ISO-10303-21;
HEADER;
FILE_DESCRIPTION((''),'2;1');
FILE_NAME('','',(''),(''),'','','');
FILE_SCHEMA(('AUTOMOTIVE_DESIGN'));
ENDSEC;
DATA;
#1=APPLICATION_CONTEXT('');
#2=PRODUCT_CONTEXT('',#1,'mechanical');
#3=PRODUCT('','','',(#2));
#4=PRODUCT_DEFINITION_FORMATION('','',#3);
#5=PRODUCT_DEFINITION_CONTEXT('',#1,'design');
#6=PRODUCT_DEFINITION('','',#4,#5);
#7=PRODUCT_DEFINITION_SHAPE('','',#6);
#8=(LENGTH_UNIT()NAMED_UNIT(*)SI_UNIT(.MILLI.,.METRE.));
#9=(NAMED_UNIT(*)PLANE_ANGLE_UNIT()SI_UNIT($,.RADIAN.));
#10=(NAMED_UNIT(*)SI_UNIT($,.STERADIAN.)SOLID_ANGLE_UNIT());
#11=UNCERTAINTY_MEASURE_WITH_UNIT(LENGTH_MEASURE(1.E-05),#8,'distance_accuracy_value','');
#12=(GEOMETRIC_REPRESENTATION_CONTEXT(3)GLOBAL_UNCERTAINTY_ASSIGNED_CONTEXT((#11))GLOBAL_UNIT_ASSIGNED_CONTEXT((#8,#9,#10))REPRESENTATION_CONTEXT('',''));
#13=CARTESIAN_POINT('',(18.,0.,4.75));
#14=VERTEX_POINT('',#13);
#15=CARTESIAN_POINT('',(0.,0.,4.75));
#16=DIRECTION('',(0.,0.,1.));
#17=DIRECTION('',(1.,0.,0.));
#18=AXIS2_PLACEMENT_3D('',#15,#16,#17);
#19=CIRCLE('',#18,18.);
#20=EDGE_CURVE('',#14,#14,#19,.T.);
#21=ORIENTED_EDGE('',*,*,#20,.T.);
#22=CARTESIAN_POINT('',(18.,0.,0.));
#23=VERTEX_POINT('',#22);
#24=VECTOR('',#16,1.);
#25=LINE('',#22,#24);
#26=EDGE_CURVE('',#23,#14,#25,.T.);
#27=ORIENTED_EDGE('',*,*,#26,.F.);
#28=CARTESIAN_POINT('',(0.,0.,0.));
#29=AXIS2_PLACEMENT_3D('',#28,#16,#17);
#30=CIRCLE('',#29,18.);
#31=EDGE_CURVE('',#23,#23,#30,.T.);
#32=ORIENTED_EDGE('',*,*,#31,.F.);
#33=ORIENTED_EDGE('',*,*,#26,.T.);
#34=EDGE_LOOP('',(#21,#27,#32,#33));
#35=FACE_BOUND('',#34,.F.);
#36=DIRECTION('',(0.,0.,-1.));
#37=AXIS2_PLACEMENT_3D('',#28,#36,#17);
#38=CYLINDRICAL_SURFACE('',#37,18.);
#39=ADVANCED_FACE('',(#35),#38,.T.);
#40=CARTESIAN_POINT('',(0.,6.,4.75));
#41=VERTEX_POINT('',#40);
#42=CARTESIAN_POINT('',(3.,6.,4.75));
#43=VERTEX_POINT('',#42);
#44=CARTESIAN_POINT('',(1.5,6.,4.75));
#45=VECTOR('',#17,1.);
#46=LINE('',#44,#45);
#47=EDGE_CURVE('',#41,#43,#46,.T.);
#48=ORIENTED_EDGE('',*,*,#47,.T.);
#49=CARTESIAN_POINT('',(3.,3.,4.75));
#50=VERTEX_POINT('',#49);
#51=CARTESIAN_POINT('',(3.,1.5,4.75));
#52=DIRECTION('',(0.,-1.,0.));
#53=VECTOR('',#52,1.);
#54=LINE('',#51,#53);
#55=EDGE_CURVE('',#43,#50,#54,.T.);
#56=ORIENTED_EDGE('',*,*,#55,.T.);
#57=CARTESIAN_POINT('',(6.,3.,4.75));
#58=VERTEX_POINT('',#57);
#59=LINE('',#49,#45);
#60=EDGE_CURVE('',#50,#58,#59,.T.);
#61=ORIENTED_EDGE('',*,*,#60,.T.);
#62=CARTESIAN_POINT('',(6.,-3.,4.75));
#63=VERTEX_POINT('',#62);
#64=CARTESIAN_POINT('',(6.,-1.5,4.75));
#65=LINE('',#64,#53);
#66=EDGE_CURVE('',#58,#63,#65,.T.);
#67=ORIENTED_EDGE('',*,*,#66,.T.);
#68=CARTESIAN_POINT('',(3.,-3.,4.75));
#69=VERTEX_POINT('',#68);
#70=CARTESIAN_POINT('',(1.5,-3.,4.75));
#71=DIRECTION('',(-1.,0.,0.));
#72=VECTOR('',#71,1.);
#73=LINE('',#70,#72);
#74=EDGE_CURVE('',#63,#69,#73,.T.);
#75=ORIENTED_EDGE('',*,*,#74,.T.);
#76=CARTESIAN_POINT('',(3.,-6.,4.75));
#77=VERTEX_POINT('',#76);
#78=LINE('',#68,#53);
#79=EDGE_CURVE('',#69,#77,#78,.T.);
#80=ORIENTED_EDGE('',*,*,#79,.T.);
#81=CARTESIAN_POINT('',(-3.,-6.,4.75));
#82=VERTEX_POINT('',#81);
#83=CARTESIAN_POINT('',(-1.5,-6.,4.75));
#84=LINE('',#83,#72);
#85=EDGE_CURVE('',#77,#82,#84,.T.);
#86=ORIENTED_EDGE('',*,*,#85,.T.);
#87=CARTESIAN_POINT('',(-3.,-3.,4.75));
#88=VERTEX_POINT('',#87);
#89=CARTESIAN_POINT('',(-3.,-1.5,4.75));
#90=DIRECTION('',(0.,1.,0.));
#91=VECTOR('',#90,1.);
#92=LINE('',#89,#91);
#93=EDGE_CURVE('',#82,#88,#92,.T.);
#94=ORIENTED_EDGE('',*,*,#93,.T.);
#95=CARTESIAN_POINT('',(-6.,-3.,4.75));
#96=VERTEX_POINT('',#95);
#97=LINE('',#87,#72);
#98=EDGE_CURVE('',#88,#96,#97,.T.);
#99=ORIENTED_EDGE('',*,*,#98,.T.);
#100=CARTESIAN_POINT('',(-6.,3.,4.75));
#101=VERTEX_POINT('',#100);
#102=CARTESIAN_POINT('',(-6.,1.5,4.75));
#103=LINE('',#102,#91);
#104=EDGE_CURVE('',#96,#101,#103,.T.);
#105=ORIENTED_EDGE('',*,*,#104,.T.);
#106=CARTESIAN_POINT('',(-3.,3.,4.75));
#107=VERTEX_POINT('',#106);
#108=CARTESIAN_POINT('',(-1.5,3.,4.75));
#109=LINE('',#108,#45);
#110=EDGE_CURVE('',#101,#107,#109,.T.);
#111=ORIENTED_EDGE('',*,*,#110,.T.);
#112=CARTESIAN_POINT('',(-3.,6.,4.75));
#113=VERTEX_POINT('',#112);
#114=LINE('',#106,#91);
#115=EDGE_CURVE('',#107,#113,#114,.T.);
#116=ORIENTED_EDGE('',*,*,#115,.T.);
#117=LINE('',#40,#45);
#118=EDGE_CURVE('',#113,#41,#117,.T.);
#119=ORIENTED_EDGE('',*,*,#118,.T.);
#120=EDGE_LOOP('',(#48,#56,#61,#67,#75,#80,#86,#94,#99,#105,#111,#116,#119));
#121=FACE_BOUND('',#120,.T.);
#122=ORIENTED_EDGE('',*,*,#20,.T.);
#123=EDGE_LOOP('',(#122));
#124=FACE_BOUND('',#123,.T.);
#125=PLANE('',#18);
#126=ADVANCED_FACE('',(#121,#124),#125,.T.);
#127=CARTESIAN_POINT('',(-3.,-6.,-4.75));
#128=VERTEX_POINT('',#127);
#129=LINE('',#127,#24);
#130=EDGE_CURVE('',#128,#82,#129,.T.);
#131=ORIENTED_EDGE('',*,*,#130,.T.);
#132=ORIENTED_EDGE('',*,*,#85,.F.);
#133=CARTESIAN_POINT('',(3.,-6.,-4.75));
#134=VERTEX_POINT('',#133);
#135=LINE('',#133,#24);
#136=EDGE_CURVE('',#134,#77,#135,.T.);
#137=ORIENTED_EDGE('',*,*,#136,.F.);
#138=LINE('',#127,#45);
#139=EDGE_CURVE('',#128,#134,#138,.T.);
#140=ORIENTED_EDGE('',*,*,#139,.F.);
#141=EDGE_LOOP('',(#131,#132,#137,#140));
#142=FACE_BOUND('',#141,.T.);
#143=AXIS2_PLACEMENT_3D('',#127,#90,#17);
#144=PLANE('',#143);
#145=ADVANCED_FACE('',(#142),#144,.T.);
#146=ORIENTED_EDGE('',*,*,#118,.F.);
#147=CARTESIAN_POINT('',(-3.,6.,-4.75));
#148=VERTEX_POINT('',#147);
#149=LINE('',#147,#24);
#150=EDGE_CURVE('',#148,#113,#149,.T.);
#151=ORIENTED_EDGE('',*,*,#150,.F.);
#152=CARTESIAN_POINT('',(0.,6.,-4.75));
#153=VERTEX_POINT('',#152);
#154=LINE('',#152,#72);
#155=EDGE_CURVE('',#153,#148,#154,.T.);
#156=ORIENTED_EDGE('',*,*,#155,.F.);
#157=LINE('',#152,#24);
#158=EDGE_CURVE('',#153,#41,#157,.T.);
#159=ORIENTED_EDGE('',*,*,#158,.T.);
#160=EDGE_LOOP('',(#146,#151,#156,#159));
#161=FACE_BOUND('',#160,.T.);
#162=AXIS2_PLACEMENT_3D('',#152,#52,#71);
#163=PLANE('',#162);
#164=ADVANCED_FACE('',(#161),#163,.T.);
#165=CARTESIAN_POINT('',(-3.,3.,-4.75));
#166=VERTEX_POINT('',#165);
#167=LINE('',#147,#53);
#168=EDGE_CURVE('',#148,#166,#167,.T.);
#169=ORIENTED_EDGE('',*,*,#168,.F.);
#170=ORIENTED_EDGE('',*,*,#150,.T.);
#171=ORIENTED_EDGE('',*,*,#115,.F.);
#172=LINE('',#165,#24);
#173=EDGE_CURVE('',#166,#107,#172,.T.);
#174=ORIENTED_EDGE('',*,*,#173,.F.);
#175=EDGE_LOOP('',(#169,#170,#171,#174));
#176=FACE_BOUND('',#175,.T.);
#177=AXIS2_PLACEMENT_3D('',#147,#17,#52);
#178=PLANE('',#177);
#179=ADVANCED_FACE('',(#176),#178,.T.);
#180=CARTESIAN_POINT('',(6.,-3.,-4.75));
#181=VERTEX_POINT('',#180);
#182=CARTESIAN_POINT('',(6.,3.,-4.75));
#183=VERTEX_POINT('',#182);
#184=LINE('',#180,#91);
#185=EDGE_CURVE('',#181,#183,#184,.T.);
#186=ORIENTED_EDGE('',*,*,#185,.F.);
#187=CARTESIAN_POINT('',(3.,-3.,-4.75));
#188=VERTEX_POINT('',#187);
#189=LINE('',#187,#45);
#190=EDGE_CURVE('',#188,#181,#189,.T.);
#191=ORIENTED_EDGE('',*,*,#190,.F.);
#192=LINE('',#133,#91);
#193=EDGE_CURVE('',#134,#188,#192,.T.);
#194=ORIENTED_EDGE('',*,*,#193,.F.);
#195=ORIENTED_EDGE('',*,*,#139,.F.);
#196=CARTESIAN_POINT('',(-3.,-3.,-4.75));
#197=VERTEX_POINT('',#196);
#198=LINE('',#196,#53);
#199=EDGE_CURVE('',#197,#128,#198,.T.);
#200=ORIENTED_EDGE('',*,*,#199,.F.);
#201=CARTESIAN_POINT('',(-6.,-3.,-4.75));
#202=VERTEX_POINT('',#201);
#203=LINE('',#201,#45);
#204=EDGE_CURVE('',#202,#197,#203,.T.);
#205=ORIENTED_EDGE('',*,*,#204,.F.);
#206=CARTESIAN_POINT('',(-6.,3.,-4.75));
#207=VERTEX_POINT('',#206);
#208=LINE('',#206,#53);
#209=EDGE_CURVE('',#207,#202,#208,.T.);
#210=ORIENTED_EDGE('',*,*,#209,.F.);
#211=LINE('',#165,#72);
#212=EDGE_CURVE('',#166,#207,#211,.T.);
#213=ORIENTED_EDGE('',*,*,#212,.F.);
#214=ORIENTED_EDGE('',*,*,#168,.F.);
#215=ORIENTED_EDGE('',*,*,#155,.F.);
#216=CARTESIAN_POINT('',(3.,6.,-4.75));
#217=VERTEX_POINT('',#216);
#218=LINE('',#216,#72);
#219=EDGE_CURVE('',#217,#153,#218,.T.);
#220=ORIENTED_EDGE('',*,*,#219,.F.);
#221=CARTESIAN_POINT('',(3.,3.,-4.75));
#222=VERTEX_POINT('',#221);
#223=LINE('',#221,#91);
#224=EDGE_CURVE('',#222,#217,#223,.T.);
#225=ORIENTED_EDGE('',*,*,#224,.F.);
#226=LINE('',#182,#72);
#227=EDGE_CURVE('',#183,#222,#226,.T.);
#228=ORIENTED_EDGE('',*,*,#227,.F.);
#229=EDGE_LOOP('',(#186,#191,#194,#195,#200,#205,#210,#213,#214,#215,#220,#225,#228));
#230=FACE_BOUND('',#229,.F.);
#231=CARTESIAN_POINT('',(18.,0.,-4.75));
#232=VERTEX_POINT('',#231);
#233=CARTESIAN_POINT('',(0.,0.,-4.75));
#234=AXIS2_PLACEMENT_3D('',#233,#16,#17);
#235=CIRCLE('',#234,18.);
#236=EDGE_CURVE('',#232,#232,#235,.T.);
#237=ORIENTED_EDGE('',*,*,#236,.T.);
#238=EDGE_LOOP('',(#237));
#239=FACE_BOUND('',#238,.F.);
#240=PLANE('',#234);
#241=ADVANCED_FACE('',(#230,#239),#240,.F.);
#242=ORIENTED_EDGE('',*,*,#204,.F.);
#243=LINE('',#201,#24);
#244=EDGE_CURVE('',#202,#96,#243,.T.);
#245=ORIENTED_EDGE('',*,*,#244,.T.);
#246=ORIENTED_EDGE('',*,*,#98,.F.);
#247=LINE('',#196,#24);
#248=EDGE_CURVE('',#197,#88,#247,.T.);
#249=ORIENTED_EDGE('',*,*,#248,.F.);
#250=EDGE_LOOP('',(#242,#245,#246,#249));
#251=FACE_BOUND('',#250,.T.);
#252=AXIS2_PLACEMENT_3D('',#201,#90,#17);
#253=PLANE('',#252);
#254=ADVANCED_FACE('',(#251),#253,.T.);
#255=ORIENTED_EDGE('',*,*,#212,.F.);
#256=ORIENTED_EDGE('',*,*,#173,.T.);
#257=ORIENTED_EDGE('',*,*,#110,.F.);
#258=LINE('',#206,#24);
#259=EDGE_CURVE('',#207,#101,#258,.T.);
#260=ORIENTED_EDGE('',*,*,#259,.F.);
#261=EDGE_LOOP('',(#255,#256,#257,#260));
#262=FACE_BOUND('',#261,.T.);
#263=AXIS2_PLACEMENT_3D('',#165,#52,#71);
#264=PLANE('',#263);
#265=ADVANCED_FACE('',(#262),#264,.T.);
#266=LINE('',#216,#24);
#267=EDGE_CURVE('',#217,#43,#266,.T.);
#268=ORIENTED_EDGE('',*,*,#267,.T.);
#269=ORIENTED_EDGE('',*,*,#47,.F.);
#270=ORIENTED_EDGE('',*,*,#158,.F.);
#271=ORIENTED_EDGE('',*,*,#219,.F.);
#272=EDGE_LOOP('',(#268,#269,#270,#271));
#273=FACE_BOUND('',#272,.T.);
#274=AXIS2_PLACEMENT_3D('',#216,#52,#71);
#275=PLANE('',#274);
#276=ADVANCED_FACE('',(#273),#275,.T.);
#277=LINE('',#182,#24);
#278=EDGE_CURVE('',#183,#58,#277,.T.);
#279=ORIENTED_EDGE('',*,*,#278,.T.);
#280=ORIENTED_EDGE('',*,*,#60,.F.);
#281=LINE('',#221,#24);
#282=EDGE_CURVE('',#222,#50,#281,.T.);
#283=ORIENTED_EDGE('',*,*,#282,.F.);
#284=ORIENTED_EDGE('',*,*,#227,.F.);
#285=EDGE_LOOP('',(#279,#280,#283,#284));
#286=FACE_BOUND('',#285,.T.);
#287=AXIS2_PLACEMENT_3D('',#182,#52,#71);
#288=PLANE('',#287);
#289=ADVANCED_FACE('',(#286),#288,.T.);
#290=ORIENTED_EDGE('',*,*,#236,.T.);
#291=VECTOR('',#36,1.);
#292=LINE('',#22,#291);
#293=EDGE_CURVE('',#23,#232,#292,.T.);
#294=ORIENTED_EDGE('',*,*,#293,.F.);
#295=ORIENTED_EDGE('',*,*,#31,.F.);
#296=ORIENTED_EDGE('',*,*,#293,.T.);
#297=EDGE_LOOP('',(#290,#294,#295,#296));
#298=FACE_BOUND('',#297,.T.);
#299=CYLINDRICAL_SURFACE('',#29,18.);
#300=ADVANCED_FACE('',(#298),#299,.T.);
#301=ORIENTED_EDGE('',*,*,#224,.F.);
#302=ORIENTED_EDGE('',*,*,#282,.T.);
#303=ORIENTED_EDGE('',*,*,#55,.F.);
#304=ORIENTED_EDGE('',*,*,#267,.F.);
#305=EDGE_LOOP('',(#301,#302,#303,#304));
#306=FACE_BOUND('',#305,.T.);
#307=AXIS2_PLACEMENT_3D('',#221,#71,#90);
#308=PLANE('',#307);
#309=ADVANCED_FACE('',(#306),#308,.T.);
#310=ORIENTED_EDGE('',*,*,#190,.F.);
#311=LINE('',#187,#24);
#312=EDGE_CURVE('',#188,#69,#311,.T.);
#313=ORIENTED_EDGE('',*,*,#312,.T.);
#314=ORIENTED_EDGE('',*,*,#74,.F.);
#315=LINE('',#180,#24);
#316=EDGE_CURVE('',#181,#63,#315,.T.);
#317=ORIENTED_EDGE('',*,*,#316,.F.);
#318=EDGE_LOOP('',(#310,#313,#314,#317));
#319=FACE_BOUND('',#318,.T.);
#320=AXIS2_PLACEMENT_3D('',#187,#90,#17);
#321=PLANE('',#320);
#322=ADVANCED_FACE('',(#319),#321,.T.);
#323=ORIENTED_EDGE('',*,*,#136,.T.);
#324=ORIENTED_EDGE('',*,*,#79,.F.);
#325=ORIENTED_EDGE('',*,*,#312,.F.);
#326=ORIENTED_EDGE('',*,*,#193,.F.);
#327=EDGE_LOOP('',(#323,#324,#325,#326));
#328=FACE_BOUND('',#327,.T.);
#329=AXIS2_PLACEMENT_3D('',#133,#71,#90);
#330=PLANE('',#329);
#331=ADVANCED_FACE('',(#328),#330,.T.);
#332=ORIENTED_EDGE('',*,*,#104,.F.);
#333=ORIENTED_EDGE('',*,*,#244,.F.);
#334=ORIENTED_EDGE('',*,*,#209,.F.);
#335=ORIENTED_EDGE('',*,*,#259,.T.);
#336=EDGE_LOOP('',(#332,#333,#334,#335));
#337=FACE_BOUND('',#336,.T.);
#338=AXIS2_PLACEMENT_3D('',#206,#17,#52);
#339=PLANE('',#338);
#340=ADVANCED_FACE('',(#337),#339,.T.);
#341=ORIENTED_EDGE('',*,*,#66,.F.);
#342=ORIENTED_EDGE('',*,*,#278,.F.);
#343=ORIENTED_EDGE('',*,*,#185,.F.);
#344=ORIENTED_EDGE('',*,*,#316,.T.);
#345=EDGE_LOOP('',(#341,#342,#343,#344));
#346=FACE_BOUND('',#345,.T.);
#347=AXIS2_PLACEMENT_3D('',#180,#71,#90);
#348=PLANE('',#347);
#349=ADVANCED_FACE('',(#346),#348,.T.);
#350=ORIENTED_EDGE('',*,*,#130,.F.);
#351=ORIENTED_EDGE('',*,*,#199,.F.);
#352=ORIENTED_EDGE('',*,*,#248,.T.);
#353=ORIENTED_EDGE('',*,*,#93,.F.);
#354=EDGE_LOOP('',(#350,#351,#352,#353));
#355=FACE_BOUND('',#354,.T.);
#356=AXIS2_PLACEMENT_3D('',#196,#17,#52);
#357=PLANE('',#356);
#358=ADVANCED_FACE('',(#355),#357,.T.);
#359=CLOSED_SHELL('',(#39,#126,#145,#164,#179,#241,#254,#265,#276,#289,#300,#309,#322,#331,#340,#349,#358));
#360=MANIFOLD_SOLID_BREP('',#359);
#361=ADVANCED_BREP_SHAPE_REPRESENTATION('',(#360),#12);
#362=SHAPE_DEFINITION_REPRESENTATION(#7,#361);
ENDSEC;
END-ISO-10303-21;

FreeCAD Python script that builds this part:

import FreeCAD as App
import Part
import Sketcher
Q = App.Units.Quantity


def add_polygon(sketch, points):
    """Adds a closed chain of lines whose ends are joined by coincident constraints."""
    first, n = sketch.GeometryCount, len(points)
    for a, b in zip(points, points[1:] + points[:1]):
        sketch.addGeometry(Part.LineSegment(App.Vector(*a, 0), App.Vector(*b, 0)), False)
    for i in range(n):
        sketch.addConstraint(Sketcher.Constraint("Coincident", first + i, 2, first + (i + 1) % n, 1))

doc = App.newDocument("Part")
params = doc.addObject("Spreadsheet::Sheet", "Params")
for row, (alias, value) in enumerate([
    ("sketch1_diameter", "36 mm"),
    ("pad1_length", "9.5 mm"),
    ("sketch2_width", "6 mm"),
    ("sketch2_width2", "3 mm"),
    ("pocket1_length", "11 mm"),
], start=1):
    params.set(f"A{row}", alias)
    params.set(f"B{row}", "=" + value)
    params.setAlias(f"B{row}", alias)

body = doc.addObject("PartDesign::Body", "Body")

# Sketch on XY plane
sketch1 = body.newObject("Sketcher::SketchObject", "Sketch")
sketch1.AttachmentSupport = (doc.getObject("XY_Plane"), [""])
sketch1.MapMode = "FlatFace"
sketch1.addGeometry(Part.Circle(App.Vector(0, 0, 0), App.Vector(0, 0, 1), 18), False)
sketch1.addConstraint([
    Sketcher.Constraint("Coincident", 0, 3, -1, 1),
    Sketcher.Constraint("Diameter", 0, Q("36 mm")),
])
sketch1.setExpression("Constraints[1]", "Params.sketch1_diameter")
pad1 = body.newObject("PartDesign::Pad", "Pad")
pad1.Profile = sketch1
pad1.setExpression("Length", "Params.pad1_length")
pad1.Midplane = True

# Sketch on XY plane
sketch2 = body.newObject("Sketcher::SketchObject", "Sketch001")
sketch2.AttachmentSupport = (doc.getObject("XY_Plane"), [""])
sketch2.MapMode = "FlatFace"
sketch2.AttachmentOffset = App.Placement(App.Vector(0, 0, -4.75), App.Rotation())
add_polygon(sketch2, [(-3, 6), (3, 6), (3, 3), (6, 3), (6, -3), (3, -3), (3, -6), (-3, -6), (-3, -3), (-6, -3), (-6, 3), (-3, 3)])  # lines 0-11
sketch2.addConstraint([
    Sketcher.Constraint("Horizontal", 0),
    Sketcher.Constraint("Vertical", 1),
    Sketcher.Constraint("Horizontal", 2),
    Sketcher.Constraint("Vertical", 3),
    Sketcher.Constraint("Horizontal", 4),
    Sketcher.Constraint("Vertical", 5),
    Sketcher.Constraint("Horizontal", 6),
    Sketcher.Constraint("Vertical", 7),
    Sketcher.Constraint("Horizontal", 8),
    Sketcher.Constraint("Vertical", 9),
    Sketcher.Constraint("Horizontal", 10),
    Sketcher.Constraint("Vertical", 11),
    Sketcher.Constraint("Symmetric", 0, 2, 6, 2, -1, 1),
    Sketcher.Constraint("Symmetric", 2, 2, 8, 2, -1, 1),
    Sketcher.Constraint("Symmetric", 4, 2, 10, 2, -1, 1),
    Sketcher.Constraint("Symmetric", 4, 2, 7, 2, -2),
    Sketcher.Constraint("Equal", 10, 1),
    Sketcher.Constraint("Equal", 6, 3),
    Sketcher.Constraint("DistanceX", 0, 1, 0, 2, Q("6 mm")),
    Sketcher.Constraint("DistanceX", 2, 1, 2, 2, Q("3 mm")),
])
sketch2.setExpression("Constraints[30]", "Params.sketch2_width")
sketch2.setExpression("Constraints[31]", "Params.sketch2_width2")
pocket1 = body.newObject("PartDesign::Pocket", "Pocket")
pocket1.Profile = sketch2
pocket1.setExpression("Length", "Params.pocket1_length")
pocket1.Reversed = True

doc.recompute()
